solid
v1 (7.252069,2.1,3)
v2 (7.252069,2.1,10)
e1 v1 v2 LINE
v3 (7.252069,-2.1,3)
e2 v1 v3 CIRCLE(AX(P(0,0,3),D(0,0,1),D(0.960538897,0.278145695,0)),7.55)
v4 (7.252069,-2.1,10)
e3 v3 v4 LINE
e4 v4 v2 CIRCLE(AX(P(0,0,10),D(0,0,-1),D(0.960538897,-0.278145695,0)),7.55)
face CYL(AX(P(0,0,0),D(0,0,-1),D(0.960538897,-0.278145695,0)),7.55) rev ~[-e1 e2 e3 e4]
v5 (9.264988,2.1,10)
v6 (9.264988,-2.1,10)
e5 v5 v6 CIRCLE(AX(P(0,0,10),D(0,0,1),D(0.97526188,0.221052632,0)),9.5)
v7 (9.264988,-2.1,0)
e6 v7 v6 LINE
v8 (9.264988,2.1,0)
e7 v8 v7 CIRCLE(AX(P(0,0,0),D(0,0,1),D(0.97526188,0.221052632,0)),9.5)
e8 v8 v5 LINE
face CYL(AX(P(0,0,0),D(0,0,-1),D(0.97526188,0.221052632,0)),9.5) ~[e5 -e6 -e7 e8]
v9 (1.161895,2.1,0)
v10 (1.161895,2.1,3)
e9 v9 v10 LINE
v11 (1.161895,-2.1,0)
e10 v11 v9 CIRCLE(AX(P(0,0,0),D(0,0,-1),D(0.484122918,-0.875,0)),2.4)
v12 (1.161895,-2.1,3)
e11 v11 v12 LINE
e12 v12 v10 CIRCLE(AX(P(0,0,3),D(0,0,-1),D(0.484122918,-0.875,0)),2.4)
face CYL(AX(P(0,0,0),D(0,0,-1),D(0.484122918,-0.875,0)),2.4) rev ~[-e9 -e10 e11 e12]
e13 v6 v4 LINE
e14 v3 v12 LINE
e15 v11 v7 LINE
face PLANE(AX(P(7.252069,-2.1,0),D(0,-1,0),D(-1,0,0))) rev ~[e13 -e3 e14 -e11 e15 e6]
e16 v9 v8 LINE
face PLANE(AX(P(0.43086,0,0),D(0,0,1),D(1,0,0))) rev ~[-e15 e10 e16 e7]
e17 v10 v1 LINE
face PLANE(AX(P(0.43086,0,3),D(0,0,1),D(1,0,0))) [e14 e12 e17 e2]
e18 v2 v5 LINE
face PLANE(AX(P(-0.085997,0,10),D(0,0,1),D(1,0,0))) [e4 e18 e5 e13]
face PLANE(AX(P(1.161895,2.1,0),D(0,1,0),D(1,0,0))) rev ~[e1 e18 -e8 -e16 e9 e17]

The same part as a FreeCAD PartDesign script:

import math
import FreeCAD as App
import Part
import Sketcher
from FreeCAD import Vector
Q = App.Units.Quantity

doc = App.newDocument("Part")
body = doc.addObject("PartDesign::Body", "Body")

sketch1 = body.newObject("Sketcher::SketchObject", "Sketch")
sketch1.AttachmentSupport = (doc.getObject("XY_Plane"), [""])
sketch1.MapMode = "FlatFace"
sketch1.addGeometry(Part.ArcOfCircle(Part.Circle(Vector(0, 0, 0), Vector(0, 0, 1), 7.5), math.radians(16), math.radians(344)), False)
sketch1.addGeometry(Part.LineSegment(Vector(7.3, 2.1, 0), Vector(9.3, 2.1, 0)), False)
sketch1.addGeometry(Part.ArcOfCircle(Part.Circle(Vector(0, 0, 0), Vector(0, 0, 1), 9.5), math.radians(13), math.radians(347)), False)
sketch1.addGeometry(Part.LineSegment(Vector(9.3, -2.1, 0), Vector(7.3, -2.1, 0)), False)
sketch1.addConstraint(Sketcher.Constraint("Coincident", 0, 1, 1, 1))
sketch1.addConstraint(Sketcher.Constraint("Coincident", 1, 2, 2, 1))
sketch1.addConstraint(Sketcher.Constraint("Coincident", 2, 2, 3, 1))
sketch1.addConstraint(Sketcher.Constraint("Coincident", 3, 2, 0, 2))
sketch1.addConstraint(Sketcher.Constraint("Horizontal", 1))
sketch1.addConstraint(Sketcher.Constraint("Horizontal", 3))
sketch1.addConstraint(Sketcher.Constraint("Coincident", 0, 3, -1, 1))
sketch1.addConstraint(Sketcher.Constraint("Coincident", 2, 3, -1, 1))
sketch1.addConstraint(Sketcher.Constraint("Vertical", 1, 2, 2, 2))
sketch1.addConstraint(Sketcher.Constraint("Radius", 2, Q("9.5 mm")))
sketch1.addConstraint(Sketcher.Constraint("Radius", 0, Q("7.55 mm")))
sketch1.addConstraint(Sketcher.Constraint("DistanceY", -1, 1, 0, 1, Q("2.1 mm")))
pad1 = body.newObject("PartDesign::Pad", "Pad")
pad1.Profile = sketch1
pad1.Length = 10

sketch2 = body.newObject("Sketcher::SketchObject", "Sketch001")
sketch2.AttachmentSupport = (doc.getObject("XY_Plane"), [""])
sketch2.MapMode = "FlatFace"
sketch2.addGeometry(Part.LineSegment(Vector(1.2, 2.1, 0), Vector(7.3, 2.1, 0)), False)
sketch2.addGeometry(Part.ArcOfCircle(Part.Circle(Vector(0, 0, 0), Vector(0, 0, 1), 7.5), math.radians(16), math.radians(344)), False)
sketch2.addGeometry(Part.LineSegment(Vector(7.3, -2.1, 0), Vector(1.2, -2.1, 0)), False)
sketch2.addGeometry(Part.ArcOfCircle(Part.Circle(Vector(0, 0, 0), Vector(0, 0, 1), 2.4), math.radians(61), math.radians(299)), False)
sketch2.addConstraint(Sketcher.Constraint("Coincident", 0, 2, 1, 1))
sketch2.addConstraint(Sketcher.Constraint("Coincident", 1, 2, 2, 1))
sketch2.addConstraint(Sketcher.Constraint("Coincident", 2, 2, 3, 2))
sketch2.addConstraint(Sketcher.Constraint("Coincident", 3, 1, 0, 1))
sketch2.addConstraint(Sketcher.Constraint("Horizontal", 0))
sketch2.addConstraint(Sketcher.Constraint("Horizontal", 2))
sketch2.addConstraint(Sketcher.Constraint("Coincident", 1, 3, -1, 1))
sketch2.addConstraint(Sketcher.Constraint("Coincident", 3, 3, -1, 1))
sketch2.addConstraint(Sketcher.Constraint("Vertical", 0, 2, 1, 2))
sketch2.addConstraint(Sketcher.Constraint("Radius", 3, Q("2.4 mm")))
sketch2.addConstraint(Sketcher.Constraint("Radius", 1, Q("7.55 mm")))
sketch2.addConstraint(Sketcher.Constraint("DistanceY", -1, 1, 0, 2, Q("2.1 mm")))
pad2 = body.newObject("PartDesign::Pad", "Pad001")
pad2.Profile = sketch2
pad2.Length = 3

doc.recompute()
